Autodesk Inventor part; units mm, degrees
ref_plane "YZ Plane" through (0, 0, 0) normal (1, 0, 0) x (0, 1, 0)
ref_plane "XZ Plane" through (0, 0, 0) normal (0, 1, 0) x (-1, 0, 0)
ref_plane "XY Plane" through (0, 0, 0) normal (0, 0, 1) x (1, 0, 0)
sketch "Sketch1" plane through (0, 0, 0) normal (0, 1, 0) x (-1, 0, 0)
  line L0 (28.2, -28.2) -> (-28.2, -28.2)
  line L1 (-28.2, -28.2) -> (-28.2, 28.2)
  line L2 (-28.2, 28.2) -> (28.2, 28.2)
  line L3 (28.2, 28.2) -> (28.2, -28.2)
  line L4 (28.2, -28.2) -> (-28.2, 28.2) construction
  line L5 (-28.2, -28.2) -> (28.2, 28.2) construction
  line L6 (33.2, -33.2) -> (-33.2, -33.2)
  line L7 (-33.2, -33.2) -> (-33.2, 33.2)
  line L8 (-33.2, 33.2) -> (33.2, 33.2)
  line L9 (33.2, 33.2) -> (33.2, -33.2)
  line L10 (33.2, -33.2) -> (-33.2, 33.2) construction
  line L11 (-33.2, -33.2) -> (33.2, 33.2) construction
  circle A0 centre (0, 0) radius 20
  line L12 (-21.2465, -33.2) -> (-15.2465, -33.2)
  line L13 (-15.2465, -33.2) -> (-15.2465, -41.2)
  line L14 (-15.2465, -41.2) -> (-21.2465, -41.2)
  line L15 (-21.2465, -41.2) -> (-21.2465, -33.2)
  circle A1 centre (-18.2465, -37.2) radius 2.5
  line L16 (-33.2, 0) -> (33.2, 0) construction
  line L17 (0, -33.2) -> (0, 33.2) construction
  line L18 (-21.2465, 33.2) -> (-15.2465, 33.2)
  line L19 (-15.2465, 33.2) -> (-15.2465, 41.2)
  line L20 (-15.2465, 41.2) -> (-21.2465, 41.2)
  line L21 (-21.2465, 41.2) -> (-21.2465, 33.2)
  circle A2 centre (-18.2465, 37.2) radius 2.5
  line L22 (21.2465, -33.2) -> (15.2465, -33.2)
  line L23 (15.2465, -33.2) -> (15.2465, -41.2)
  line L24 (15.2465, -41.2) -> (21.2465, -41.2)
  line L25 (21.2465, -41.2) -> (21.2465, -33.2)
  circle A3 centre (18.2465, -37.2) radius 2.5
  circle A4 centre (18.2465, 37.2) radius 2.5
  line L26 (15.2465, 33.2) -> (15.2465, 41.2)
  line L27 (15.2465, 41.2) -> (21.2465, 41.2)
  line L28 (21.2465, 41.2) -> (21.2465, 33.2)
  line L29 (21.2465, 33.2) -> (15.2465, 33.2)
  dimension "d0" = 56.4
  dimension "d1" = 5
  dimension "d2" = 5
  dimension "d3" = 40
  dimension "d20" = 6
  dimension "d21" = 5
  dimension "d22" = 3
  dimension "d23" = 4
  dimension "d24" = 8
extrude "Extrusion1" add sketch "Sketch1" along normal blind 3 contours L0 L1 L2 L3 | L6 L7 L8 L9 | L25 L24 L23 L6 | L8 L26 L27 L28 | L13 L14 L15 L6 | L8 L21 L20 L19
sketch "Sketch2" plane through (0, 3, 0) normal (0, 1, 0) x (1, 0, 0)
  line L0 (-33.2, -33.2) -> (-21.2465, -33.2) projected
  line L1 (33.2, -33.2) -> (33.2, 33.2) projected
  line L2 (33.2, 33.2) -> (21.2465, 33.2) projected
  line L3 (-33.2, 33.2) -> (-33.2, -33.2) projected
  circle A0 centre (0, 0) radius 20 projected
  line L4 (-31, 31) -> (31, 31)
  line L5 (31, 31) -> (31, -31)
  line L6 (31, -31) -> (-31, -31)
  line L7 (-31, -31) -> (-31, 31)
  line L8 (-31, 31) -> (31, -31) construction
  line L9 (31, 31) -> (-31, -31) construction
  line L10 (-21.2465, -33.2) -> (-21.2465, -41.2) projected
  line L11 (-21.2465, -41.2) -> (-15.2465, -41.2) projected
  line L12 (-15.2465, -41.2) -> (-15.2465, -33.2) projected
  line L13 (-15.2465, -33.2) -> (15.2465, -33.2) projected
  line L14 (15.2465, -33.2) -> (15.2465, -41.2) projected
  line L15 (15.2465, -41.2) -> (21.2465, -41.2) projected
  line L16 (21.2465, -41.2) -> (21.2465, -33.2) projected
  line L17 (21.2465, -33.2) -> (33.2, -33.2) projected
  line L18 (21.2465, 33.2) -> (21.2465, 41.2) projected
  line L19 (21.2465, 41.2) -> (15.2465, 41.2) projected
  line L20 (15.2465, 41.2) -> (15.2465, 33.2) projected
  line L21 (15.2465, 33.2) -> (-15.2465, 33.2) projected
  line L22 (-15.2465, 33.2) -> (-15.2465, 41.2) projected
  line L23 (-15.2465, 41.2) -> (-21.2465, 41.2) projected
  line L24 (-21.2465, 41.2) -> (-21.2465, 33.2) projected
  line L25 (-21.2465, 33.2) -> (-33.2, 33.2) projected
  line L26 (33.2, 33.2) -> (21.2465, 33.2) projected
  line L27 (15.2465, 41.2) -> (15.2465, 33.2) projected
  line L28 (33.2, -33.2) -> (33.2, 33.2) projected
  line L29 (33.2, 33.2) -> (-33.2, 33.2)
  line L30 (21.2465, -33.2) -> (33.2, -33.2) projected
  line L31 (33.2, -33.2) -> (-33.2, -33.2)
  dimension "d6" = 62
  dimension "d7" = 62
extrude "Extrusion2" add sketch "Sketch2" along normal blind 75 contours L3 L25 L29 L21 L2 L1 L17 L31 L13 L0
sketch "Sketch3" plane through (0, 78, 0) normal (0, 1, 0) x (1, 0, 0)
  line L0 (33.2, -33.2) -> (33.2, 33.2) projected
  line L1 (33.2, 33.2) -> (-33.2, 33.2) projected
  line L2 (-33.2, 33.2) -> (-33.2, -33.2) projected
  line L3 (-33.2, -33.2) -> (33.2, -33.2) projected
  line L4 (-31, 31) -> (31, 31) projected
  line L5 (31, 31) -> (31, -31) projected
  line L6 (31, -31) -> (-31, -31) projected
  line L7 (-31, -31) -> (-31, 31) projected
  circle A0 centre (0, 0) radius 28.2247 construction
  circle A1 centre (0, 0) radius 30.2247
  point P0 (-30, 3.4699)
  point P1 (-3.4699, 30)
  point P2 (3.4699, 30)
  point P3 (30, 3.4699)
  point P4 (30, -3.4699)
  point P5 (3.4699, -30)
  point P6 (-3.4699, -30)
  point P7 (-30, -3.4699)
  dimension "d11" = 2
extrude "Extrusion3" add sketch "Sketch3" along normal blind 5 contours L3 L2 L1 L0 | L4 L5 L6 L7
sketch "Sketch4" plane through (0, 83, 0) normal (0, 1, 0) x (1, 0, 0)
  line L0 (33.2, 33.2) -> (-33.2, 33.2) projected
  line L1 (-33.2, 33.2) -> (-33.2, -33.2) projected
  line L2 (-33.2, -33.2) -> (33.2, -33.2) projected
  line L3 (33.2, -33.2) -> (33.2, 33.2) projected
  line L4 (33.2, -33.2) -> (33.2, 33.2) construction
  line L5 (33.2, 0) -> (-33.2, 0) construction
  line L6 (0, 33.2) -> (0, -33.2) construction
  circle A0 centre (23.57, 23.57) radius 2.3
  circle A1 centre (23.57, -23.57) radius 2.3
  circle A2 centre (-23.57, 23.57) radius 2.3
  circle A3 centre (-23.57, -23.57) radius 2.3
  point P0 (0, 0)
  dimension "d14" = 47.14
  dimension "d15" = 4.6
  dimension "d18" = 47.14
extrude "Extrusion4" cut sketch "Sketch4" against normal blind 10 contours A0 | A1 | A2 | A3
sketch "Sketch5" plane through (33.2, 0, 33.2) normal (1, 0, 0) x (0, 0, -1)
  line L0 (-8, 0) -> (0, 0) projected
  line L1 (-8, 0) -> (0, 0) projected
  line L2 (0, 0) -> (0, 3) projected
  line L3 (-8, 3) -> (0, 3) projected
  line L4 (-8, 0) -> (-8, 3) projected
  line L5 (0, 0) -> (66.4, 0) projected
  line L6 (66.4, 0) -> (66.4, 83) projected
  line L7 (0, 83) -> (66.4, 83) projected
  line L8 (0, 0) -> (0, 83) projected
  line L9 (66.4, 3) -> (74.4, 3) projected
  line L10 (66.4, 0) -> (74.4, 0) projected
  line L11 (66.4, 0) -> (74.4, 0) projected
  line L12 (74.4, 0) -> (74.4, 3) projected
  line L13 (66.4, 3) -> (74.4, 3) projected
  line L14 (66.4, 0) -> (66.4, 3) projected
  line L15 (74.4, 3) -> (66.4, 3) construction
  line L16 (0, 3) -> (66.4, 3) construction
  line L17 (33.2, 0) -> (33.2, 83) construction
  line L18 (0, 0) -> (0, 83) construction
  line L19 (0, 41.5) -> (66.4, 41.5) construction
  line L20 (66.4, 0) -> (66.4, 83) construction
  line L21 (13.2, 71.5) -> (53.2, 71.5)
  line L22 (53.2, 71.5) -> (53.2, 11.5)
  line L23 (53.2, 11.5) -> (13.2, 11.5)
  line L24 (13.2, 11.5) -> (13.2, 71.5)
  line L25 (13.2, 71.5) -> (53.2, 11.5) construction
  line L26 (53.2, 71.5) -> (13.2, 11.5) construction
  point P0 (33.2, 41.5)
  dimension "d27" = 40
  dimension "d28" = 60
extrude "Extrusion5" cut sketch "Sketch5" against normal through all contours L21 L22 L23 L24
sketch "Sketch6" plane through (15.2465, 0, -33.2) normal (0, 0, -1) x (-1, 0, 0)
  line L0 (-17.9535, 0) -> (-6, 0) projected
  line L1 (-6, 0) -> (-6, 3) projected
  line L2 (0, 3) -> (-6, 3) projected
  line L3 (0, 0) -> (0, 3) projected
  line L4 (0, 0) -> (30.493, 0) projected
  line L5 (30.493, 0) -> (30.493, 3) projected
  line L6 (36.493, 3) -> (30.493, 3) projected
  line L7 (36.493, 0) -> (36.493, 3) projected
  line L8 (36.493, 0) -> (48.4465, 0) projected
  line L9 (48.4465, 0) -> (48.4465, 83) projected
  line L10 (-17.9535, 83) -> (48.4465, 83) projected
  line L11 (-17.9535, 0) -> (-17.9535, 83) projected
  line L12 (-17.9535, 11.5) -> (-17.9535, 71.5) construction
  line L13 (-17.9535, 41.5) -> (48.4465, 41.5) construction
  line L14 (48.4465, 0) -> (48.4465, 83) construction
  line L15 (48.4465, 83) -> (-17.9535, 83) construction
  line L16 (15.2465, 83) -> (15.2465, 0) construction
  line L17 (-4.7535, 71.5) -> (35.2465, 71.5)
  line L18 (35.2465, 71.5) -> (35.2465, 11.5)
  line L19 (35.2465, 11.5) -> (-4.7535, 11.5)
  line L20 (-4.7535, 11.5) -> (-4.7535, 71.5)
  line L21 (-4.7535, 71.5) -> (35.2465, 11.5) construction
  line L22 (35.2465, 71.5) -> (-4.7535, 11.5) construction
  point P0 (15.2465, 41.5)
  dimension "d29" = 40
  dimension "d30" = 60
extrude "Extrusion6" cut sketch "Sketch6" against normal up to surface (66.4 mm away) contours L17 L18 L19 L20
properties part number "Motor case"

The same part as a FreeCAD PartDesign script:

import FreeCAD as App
import Part
import Sketcher

V = App.Vector
Q = App.Units.Quantity

doc = App.newDocument("Part")
body = doc.addObject("PartDesign::Body", "Body")

sketch1 = body.newObject("Sketcher::SketchObject", "Sketch")
sketch1.AttachmentSupport = (doc.getObject("XZ_Plane"), [""])
sketch1.MapMode = "FlatFace"
sketch1.addGeometry(Part.LineSegment(V(-21.2, -33.2, 0), V(-33.2, -33.2, 0)), False)
sketch1.addGeometry(Part.LineSegment(V(-33.2, -33.2, 0), V(-33.2, 33.2, 0)), False)
sketch1.addGeometry(Part.LineSegment(V(-33.2, 33.2, 0), V(-21.2, 33.2, 0)), False)
sketch1.addGeometry(Part.LineSegment(V(-21.2, 33.2, 0), V(-21.2, 41.2, 0)), False)
sketch1.addGeometry(Part.LineSegment(V(-21.2, 41.2, 0), V(-15.2, 41.2, 0)), False)
sketch1.addGeometry(Part.LineSegment(V(-15.2, 41.2, 0), V(-15.2, 33.2, 0)), False)
sketch1.addGeometry(Part.LineSegment(V(-15.2, 33.2, 0), V(15.2, 33.2, 0)), False)
sketch1.addGeometry(Part.LineSegment(V(15.2, 33.2, 0), V(15.2, 41.2, 0)), False)
sketch1.addGeometry(Part.LineSegment(V(15.2, 41.2, 0), V(21.2, 41.2, 0)), False)
sketch1.addGeometry(Part.LineSegment(V(21.2, 41.2, 0), V(21.2, 33.2, 0)), False)
sketch1.addGeometry(Part.LineSegment(V(21.2, 33.2, 0), V(33.2, 33.2, 0)), False)
sketch1.addGeometry(Part.LineSegment(V(33.2, 33.2, 0), V(33.2, -33.2, 0)), False)
sketch1.addGeometry(Part.LineSegment(V(33.2, -33.2, 0), V(21.2, -33.2, 0)), False)
sketch1.addGeometry(Part.LineSegment(V(21.2, -33.2, 0), V(21.2, -41.2, 0)), False)
sketch1.addGeometry(Part.LineSegment(V(21.2, -41.2, 0), V(15.2, -41.2, 0)), False)
sketch1.addGeometry(Part.LineSegment(V(15.2, -41.2, 0), V(15.2, -33.2, 0)), False)
sketch1.addGeometry(Part.LineSegment(V(15.2, -33.2, 0), V(-15.2, -33.2, 0)), False)
sketch1.addGeometry(Part.LineSegment(V(-15.2, -33.2, 0), V(-15.2, -41.2, 0)), False)
sketch1.addGeometry(Part.LineSegment(V(-15.2, -41.2, 0), V(-21.2, -41.2, 0)), False)
sketch1.addGeometry(Part.LineSegment(V(-21.2, -41.2, 0), V(-21.2, -33.2, 0)), False)
sketch1.addGeometry(Part.Circle(V(0, 0, 0), V(0, 0, 1), 20), False)
sketch1.addGeometry(Part.Circle(V(-18.2, -37.2, 0), V(0, 0, 1), 2.5), False)
sketch1.addGeometry(Part.Circle(V(18.2, -37.2, 0), V(0, 0, 1), 2.5), False)
sketch1.addGeometry(Part.Circle(V(18.2, 37.2, 0), V(0, 0, 1), 2.5), False)
sketch1.addGeometry(Part.Circle(V(-18.2, 37.2, 0), V(0, 0, 1), 2.5), False)
sketch1.addConstraint(Sketcher.Constraint("Coincident", 0, 2, 1, 1))
sketch1.addConstraint(Sketcher.Constraint("Coincident", 1, 2, 2, 1))
sketch1.addConstraint(Sketcher.Constraint("Coincident", 2, 2, 3, 1))
sketch1.addConstraint(Sketcher.Constraint("Coincident", 3, 2, 4, 1))
sketch1.addConstraint(Sketcher.Constraint("Coincident", 4, 2, 5, 1))
sketch1.addConstraint(Sketcher.Constraint("Coincident", 5, 2, 6, 1))
sketch1.addConstraint(Sketcher.Constraint("Coincident", 6, 2, 7, 1))
sketch1.addConstraint(Sketcher.Constraint("Coincident", 7, 2, 8, 1))
sketch1.addConstraint(Sketcher.Constraint("Coincident", 8, 2, 9, 1))
sketch1.addConstraint(Sketcher.Constraint("Coincident", 9, 2, 10, 1))
sketch1.addConstraint(Sketcher.Constraint("Coincident", 10, 2, 11, 1))
sketch1.addConstraint(Sketcher.Constraint("Coincident", 11, 2, 12, 1))
sketch1.addConstraint(Sketcher.Constraint("Coincident", 12, 2, 13, 1))
sketch1.addConstraint(Sketcher.Constraint("Coincident", 13, 2, 14, 1))
sketch1.addConstraint(Sketcher.Constraint("Coincident", 14, 2, 15, 1))
sketch1.addConstraint(Sketcher.Constraint("Coincident", 15, 2, 16, 1))
sketch1.addConstraint(Sketcher.Constraint("Coincident", 16, 2, 17, 1))
sketch1.addConstraint(Sketcher.Constraint("Coincident", 17, 2, 18, 1))
sketch1.addConstraint(Sketcher.Constraint("Coincident", 18, 2, 19, 1))
sketch1.addConstraint(Sketcher.Constraint("Coincident", 19, 2, 0, 1))
sketch1.addConstraint(Sketcher.Constraint("Horizontal", 0))
sketch1.addConstraint(Sketcher.Constraint("Vertical", 1))
sketch1.addConstraint(Sketcher.Constraint("Horizontal", 2))
sketch1.addConstraint(Sketcher.Constraint("Vertical", 3))
sketch1.addConstraint(Sketcher.Constraint("Horizontal", 4))
sketch1.addConstraint(Sketcher.Constraint("Vertical", 5))
sketch1.addConstraint(Sketcher.Constraint("Horizontal", 6))
sketch1.addConstraint(Sketcher.Constraint("Vertical", 7))
sketch1.addConstraint(Sketcher.Constraint("Horizontal", 8))
sketch1.addConstraint(Sketcher.Constraint("Vertical", 9))
sketch1.addConstraint(Sketcher.Constraint("Horizontal", 10))
sketch1.addConstraint(Sketcher.Constraint("Vertical", 11))
sketch1.addConstraint(Sketcher.Constraint("Horizontal", 12))
sketch1.addConstraint(Sketcher.Constraint("Vertical", 13))
sketch1.addConstraint(Sketcher.Constraint("Horizontal", 14))
sketch1.addConstraint(Sketcher.Constraint("Vertical", 15))
sketch1.addConstraint(Sketcher.Constraint("Horizontal", 16))
sketch1.addConstraint(Sketcher.Constraint("Vertical", 17))
sketch1.addConstraint(Sketcher.Constraint("Horizontal", 18))
sketch1.addConstraint(Sketcher.Constraint("Vertical", 19))
sketch1.addConstraint(Sketcher.Constraint("Coincident", 20, 3, -1, 1))
sketch1.addConstraint(Sketcher.Constraint("Equal", 21, 22))
sketch1.addConstraint(Sketcher.Constraint("Equal", 22, 23))
sketch1.addConstraint(Sketcher.Constraint("Equal", 23, 24))
sketch1.addConstraint(Sketcher.Constraint("Symmetric", 21, 3, 23, 3, -1, 1))
sketch1.addConstraint(Sketcher.Constraint("Symmetric", 22, 3, 24, 3, -1, 1))
sketch1.addConstraint(Sketcher.Constraint("Symmetric", 0, 2, 10, 2, -1, 1))
sketch1.addConstraint(Sketcher.Constraint("Symmetric", 2, 2, 12, 2, -1, 1))
sketch1.addConstraint(Sketcher.Constraint("Symmetric", 4, 2, 14, 2, -1, 1))
sketch1.addConstraint(Sketcher.Constraint("Symmetric", 6, 2, 16, 2, -1, 1))
sketch1.addConstraint(Sketcher.Constraint("Symmetric", 8, 2, 18, 2, -1, 1))
sketch1.addConstraint(Sketcher.Constraint("Symmetric", 21, 3, 22, 3, -2))
sketch1.addConstraint(Sketcher.Constraint("Symmetric", 4, 2, 7, 2, -2))
sketch1.addConstraint(Sketcher.Constraint("Symmetric", 2, 2, 9, 2, -2))
sketch1.addConstraint(Sketcher.Constraint("Horizontal", 2, 2, 5, 2))
sketch1.addConstraint(Sketcher.Constraint("Diameter", 20, Q("40 mm")))
sketch1.addConstraint(Sketcher.Constraint("Diameter", 21, Q("5 mm")))
sketch1.addConstraint(Sketcher.Constraint("DistanceX", 4, 1, 4, 2, Q("6 mm")))
sketch1.addConstraint(Sketcher.Constraint("DistanceY", 3, 1, 3, 2, Q("8 mm")))
sketch1.addConstraint(Sketcher.Constraint("DistanceY", 21, 3, 0, 2, Q("4 mm")))
sketch1.addConstraint(Sketcher.Constraint("DistanceX", 2, 2, 24, 3, Q("3 mm")))
sketch1.addConstraint(Sketcher.Constraint("DistanceY", 1, 1, 1, 2, Q("66.4 mm")))
sketch1.addConstraint(Sketcher.Constraint("DistanceX", 0, 2, -1, 1, Q("33.2 mm")))
sketch1.addConstraint(Sketcher.Constraint("DistanceX", 6, 1, 6, 2, Q("30.493 mm")))
pad1 = body.newObject("PartDesign::Pad", "Pad")
pad1.Profile = sketch1
pad1.Length = 3
pad1.Reversed = True

sketch2 = body.newObject("Sketcher::SketchObject", "Sketch001")
sketch2.AttachmentSupport = (doc.getObject("XZ_Plane"), [""])
sketch2.MapMode = "FlatFace"
sketch2.AttachmentOffset = App.Placement(V(0, 0, -3), App.Rotation())
sketch2.addGeometry(Part.LineSegment(V(-33, -33, 0), V(-33, 33, 0)), False)
sketch2.addGeometry(Part.LineSegment(V(-33, 33, 0), V(33, 33, 0)), False)
sketch2.addGeometry(Part.LineSegment(V(33, 33, 0), V(33, -33, 0)), False)
sketch2.addGeometry(Part.LineSegment(V(33, -33, 0), V(-33, -33, 0)), False)
sketch2.addGeometry(Part.LineSegment(V(-31, 31, 0), V(-31, -31, 0)), False)
sketch2.addGeometry(Part.LineSegment(V(-31, -31, 0), V(31, -31, 0)), False)
sketch2.addGeometry(Part.LineSegment(V(31, -31, 0), V(31, 31, 0)), False)
sketch2.addGeometry(Part.LineSegment(V(31, 31, 0), V(-31, 31, 0)), False)
sketch2.addConstraint(Sketcher.Constraint("Coincident", 0, 2, 1, 1))
sketch2.addConstraint(Sketcher.Constraint("Coincident", 1, 2, 2, 1))
sketch2.addConstraint(Sketcher.Constraint("Coincident", 2, 2, 3, 1))
sketch2.addConstraint(Sketcher.Constraint("Coincident", 3, 2, 0, 1))
sketch2.addConstraint(Sketcher.Constraint("Coincident", 4, 2, 5, 1))
sketch2.addConstraint(Sketcher.Constraint("Coincident", 5, 2, 6, 1))
sketch2.addConstraint(Sketcher.Constraint("Coincident", 6, 2, 7, 1))
sketch2.addConstraint(Sketcher.Constraint("Coincident", 7, 2, 4, 1))
sketch2.addConstraint(Sketcher.Constraint("Vertical", 0))
sketch2.addConstraint(Sketcher.Constraint("Horizontal", 1))
sketch2.addConstraint(Sketcher.Constraint("Vertical", 2))
sketch2.addConstraint(Sketcher.Constraint("Horizontal", 3))
sketch2.addConstraint(Sketcher.Constraint("Vertical", 4))
sketch2.addConstraint(Sketcher.Constraint("Horizontal", 5))
sketch2.addConstraint(Sketcher.Constraint("Vertical", 6))
sketch2.addConstraint(Sketcher.Constraint("Horizontal", 7))
sketch2.addConstraint(Sketcher.Constraint("Symmetric", 0, 2, 2, 2, -1, 1))
sketch2.addConstraint(Sketcher.Constraint("Symmetric", 4, 2, 6, 2, -1, 1))
sketch2.addConstraint(Sketcher.Constraint("Equal", 3, 0))
sketch2.addConstraint(Sketcher.Constraint("Equal", 7, 4))
sketch2.addConstraint(Sketcher.Constraint("DistanceX", 5, 1, 5, 2, Q("62 mm")))
sketch2.addConstraint(Sketcher.Constraint("DistanceX", 1, 1, 1, 2, Q("66.4 mm")))
pad2 = body.newObject("PartDesign::Pad", "Pad001")
pad2.Profile = sketch2
pad2.Length = 75
pad2.Reversed = True

sketch3 = body.newObject("Sketcher::SketchObject", "Sketch002")
sketch3.AttachmentSupport = (doc.getObject("XZ_Plane"), [""])
sketch3.MapMode = "FlatFace"
sketch3.AttachmentOffset = App.Placement(V(0, 0, -78), App.Rotation())
sketch3.addGeometry(Part.LineSegment(V(-33, 33, 0), V(33, 33, 0)), False)
sketch3.addGeometry(Part.LineSegment(V(33, 33, 0), V(33, -33, 0)), False)
sketch3.addGeometry(Part.LineSegment(V(33, -33, 0), V(-33, -33, 0)), False)
sketch3.addGeometry(Part.LineSegment(V(-33, -33, 0), V(-33, 33, 0)), False)
sketch3.addGeometry(Part.Circle(V(0, 0, 0), V(0, 0, 1), 30), False)
sketch3.addConstraint(Sketcher.Constraint("Coincident", 0, 2, 1, 1))
sketch3.addConstraint(Sketcher.Constraint("Coincident", 1, 2, 2, 1))
sketch3.addConstraint(Sketcher.Constraint("Coincident", 2, 2, 3, 1))
sketch3.addConstraint(Sketcher.Constraint("Coincident", 3, 2, 0, 1))
sketch3.addConstraint(Sketcher.Constraint("Horizontal", 0))
sketch3.addConstraint(Sketcher.Constraint("Vertical", 1))
sketch3.addConstraint(Sketcher.Constraint("Horizontal", 2))
sketch3.addConstraint(Sketcher.Constraint("Vertical", 3))
sketch3.addConstraint(Sketcher.Constraint("Coincident", 4, 3, -1, 1))
sketch3.addConstraint(Sketcher.Constraint("Symmetric", 0, 2, 2, 2, -1, 1))
sketch3.addConstraint(Sketcher.Constraint("Equal", 2, 1))
sketch3.addConstraint(Sketcher.Constraint("DistanceX", 0, 1, 0, 2, Q("66.4 mm")))
sketch3.addConstraint(Sketcher.Constraint("Diameter", 4, Q("60.4494 mm")))
pad3 = body.newObject("PartDesign::Pad", "Pad002")
pad3.Profile = sketch3
pad3.Length = 5
pad3.Reversed = True

sketch4 = body.newObject("Sketcher::SketchObject", "Sketch003")
sketch4.AttachmentSupport = (doc.getObject("XZ_Plane"), [""])
sketch4.MapMode = "FlatFace"
sketch4.AttachmentOffset = App.Placement(V(0, 0, -83), App.Rotation())
sketch4.addGeometry(Part.Circle(V(23.6, -23.6, 0), V(0, 0, 1), 2.3), False)
sketch4.addGeometry(Part.Circle(V(23.6, 23.6, 0), V(0, 0, 1), 2.3), False)
sketch4.addGeometry(Part.Circle(V(-23.6, -23.6, 0), V(0, 0, 1), 2.3), False)
sketch4.addGeometry(Part.Circle(V(-23.6, 23.6, 0), V(0, 0, 1), 2.3), False)
sketch4.addConstraint(Sketcher.Constraint("Equal", 0, 1))
sketch4.addConstraint(Sketcher.Constraint("Equal", 1, 2))
sketch4.addConstraint(Sketcher.Constraint("Equal", 2, 3))
sketch4.addConstraint(Sketcher.Constraint("Symmetric", 1, 3, 2, 3, -1, 1))
sketch4.addConstraint(Sketcher.Constraint("Symmetric", 0, 3, 3, 3, -1, 1))
sketch4.addConstraint(Sketcher.Constraint("Symmetric", 0, 3, 2, 3, -2))
sketch4.addConstraint(Sketcher.Constraint("Diameter", 0, Q("4.6 mm")))
sketch4.addConstraint(Sketcher.Constraint("DistanceY", 0, 3, 1, 3, Q("47.14 mm")))
sketch4.addConstraint(Sketcher.Constraint("DistanceX", 2, 3, 0, 3, Q("47.14 mm")))
pocket1 = body.newObject("PartDesign::Pocket", "Pocket")
pocket1.Profile = sketch4
pocket1.Length = 10
pocket1.Reversed = True

sketch5 = body.newObject("Sketcher::SketchObject", "Sketch004")
sketch5.AttachmentSupport = (doc.getObject("YZ_Plane"), [""])
sketch5.MapMode = "FlatFace"
sketch5.AttachmentOffset = App.Placement(V(0, 0, 33.2), App.Rotation())
sketch5.addGeometry(Part.LineSegment(V(72, -20, 0), V(72, 20, 0)), False)
sketch5.addGeometry(Part.LineSegment(V(72, 20, 0), V(12, 20, 0)), False)
sketch5.addGeometry(Part.LineSegment(V(12, 20, 0), V(12, -20, 0)), False)
sketch5.addGeometry(Part.LineSegment(V(12, -20, 0), V(72, -20, 0)), False)
sketch5.addConstraint(Sketcher.Constraint("Coincident", 0, 2, 1, 1))
sketch5.addConstraint(Sketcher.Constraint("Coincident", 1, 2, 2, 1))
sketch5.addConstraint(Sketcher.Constraint("Coincident", 2, 2, 3, 1))
sketch5.addConstraint(Sketcher.Constraint("Coincident", 3, 2, 0, 1))
sketch5.addConstraint(Sketcher.Constraint("Vertical", 0))
sketch5.addConstraint(Sketcher.Constraint("Horizontal", 1))
sketch5.addConstraint(Sketcher.Constraint("Vertical", 2))
sketch5.addConstraint(Sketcher.Constraint("Horizontal", 3))
sketch5.addConstraint(Sketcher.Constraint("DistanceX", 1, 2, 1, 1, Q("60 mm")))
sketch5.addConstraint(Sketcher.Constraint("DistanceY", 0, 1, 0, 2, Q("40 mm")))
sketch5.addConstraint(Sketcher.Constraint("DistanceY", -1, 1, 0, 2, Q("20 mm")))
sketch5.addConstraint(Sketcher.Constraint("DistanceX", -1, 1, 0, 2, Q("71.5 mm")))
pocket2 = body.newObject("PartDesign::Pocket", "Pocket001")
pocket2.Profile = sketch5
pocket2.Type = "ThroughAll"

sketch6 = body.newObject("Sketcher::SketchObject", "Sketch005")
sketch6.AttachmentSupport = (doc.getObject("XY_Plane"), [""])
sketch6.MapMode = "FlatFace"
sketch6.AttachmentOffset = App.Placement(V(0, 0, -33.2), App.Rotation())
sketch6.addGeometry(Part.LineSegment(V(-20, 72, 0), V(20, 72, 0)), False)
sketch6.addGeometry(Part.LineSegment(V(20, 72, 0), V(20, 12, 0)), False)
sketch6.addGeometry(Part.LineSegment(V(20, 12, 0), V(-20, 12, 0)), False)
sketch6.addGeometry(Part.LineSegment(V(-20, 12, 0), V(-20, 72, 0)), False)
sketch6.addConstraint(Sketcher.Constraint("Coincident", 0, 2, 1, 1))
sketch6.addConstraint(Sketcher.Constraint("Coincident", 1, 2, 2, 1))
sketch6.addConstraint(Sketcher.Constraint("Coincident", 2, 2, 3, 1))
sketch6.addConstraint(Sketcher.Constraint("Coincident", 3, 2, 0, 1))
sketch6.addConstraint(Sketcher.Constraint("Horizontal", 0))
sketch6.addConstraint(Sketcher.Constraint("Vertical", 1))
sketch6.addConstraint(Sketcher.Constraint("Horizontal", 2))
sketch6.addConstraint(Sketcher.Constraint("Vertical", 3))
sketch6.addConstraint(Sketcher.Constraint("DistanceX", 0, 1, 0, 2, Q("40 mm")))
sketch6.addConstraint(Sketcher.Constraint("DistanceY", 1, 2, 1, 1, Q("60 mm")))
sketch6.addConstraint(Sketcher.Constraint("DistanceX", -1, 1, 0, 2, Q("20 mm")))
sketch6.addConstraint(Sketcher.Constraint("DistanceY", -1, 1, 0, 2, Q("71.5 mm")))
pocket3 = body.newObject("PartDesign::Pocket", "Pocket002")
pocket3.Profile = sketch6
pocket3.Length = 66.4
pocket3.Reversed = True

doc.recompute()
